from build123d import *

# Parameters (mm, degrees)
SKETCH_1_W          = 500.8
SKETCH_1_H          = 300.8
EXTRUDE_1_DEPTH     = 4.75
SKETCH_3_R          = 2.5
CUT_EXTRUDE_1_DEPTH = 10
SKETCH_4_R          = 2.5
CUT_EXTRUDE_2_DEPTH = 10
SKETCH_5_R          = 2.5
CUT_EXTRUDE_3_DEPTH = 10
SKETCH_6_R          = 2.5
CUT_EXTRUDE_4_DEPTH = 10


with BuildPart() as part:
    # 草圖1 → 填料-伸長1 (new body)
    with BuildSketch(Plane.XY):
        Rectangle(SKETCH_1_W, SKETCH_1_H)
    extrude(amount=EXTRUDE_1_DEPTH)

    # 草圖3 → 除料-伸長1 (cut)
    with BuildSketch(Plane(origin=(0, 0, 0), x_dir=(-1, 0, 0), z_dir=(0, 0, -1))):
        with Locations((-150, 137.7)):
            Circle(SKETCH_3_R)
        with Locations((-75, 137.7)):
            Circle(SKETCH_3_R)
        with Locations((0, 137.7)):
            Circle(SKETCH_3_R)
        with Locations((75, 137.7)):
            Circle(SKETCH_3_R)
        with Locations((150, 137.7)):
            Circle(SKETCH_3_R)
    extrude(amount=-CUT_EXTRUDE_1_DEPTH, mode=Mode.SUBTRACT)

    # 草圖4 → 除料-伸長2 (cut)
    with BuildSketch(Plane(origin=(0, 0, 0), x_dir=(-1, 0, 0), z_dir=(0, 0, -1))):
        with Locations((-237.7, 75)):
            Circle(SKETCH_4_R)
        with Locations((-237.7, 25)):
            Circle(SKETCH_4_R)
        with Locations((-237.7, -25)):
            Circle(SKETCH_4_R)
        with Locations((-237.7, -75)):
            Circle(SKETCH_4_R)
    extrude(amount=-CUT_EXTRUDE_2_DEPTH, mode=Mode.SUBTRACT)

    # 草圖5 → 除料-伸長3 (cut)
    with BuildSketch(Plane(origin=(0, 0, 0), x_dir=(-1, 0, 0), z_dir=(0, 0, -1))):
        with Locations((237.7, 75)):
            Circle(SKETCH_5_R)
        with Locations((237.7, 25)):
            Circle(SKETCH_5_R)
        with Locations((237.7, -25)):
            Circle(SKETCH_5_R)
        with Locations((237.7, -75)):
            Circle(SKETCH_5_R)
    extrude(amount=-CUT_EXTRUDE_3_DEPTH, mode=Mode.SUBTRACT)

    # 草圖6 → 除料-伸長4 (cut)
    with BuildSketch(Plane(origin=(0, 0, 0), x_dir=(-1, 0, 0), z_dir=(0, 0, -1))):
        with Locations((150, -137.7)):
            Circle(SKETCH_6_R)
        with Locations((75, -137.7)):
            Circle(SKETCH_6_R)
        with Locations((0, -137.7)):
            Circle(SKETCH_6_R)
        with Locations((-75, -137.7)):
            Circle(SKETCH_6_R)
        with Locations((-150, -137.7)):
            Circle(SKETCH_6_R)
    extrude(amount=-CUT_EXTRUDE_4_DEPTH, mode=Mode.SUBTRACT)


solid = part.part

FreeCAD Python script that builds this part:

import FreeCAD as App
import Part
import Sketcher
from FreeCAD import Vector
Q = App.Units.Quantity


def add_polygon(sketch, points):
    """Adds a closed chain of lines whose ends are joined by coincident constraints."""
    first, n = sketch.GeometryCount, len(points)
    for a, b in zip(points, points[1:] + points[:1]):
        sketch.addGeometry(Part.LineSegment(App.Vector(*a, 0), App.Vector(*b, 0)), False)
    for i in range(n):
        sketch.addConstraint(Sketcher.Constraint("Coincident", first + i, 2, first + (i + 1) % n, 1))

doc = App.newDocument("Part")
params = doc.addObject("Spreadsheet::Sheet", "Params")
for row, (alias, value) in enumerate([
    ("sketch1_width", "500.8 mm"),
    ("sketch1_height", "300.8 mm"),
    ("pad1_length", "4.75 mm"),
    ("sketch2_diameter", "5 mm"),
    ("pocket1_length", "10 mm"),
    ("sketch3_diameter", "5 mm"),
    ("pocket2_length", "10 mm"),
    ("sketch4_diameter", "5 mm"),
    ("pocket3_length", "10 mm"),
    ("sketch5_diameter", "5 mm"),
    ("pocket4_length", "10 mm"),
], start=1):
    params.set(f"A{row}", alias)
    params.set(f"B{row}", "=" + value)
    params.setAlias(f"B{row}", alias)

body = doc.addObject("PartDesign::Body", "Body")

sketch1 = body.newObject("Sketcher::SketchObject", "Sketch")
sketch1.AttachmentSupport = (doc.getObject("XY_Plane"), [""])
sketch1.MapMode = "FlatFace"
add_polygon(sketch1, [(-250, 150), (-250, -150), (250, -150), (250, 150)])
sketch1.addConstraint([
    Sketcher.Constraint("Vertical", 0),
    Sketcher.Constraint("Horizontal", 1),
    Sketcher.Constraint("Vertical", 2),
    Sketcher.Constraint("Horizontal", 3),
    Sketcher.Constraint("Symmetric", 0, 2, 2, 2, -1, 1),
    Sketcher.Constraint("DistanceX", 1, 1, 1, 2, Q("500.8 mm")),
    Sketcher.Constraint("DistanceY", 0, 2, 0, 1, Q("300.8 mm")),
])
sketch1.setExpression("Constraints[9]", "Params.sketch1_width")
sketch1.setExpression("Constraints[10]", "Params.sketch1_height")
pad1 = body.newObject("PartDesign::Pad", "Pad")
pad1.Profile = sketch1
pad1.setExpression("Length", "Params.pad1_length")

sketch2 = body.newObject("Sketcher::SketchObject", "Sketch001")
sketch2.AttachmentSupport = (doc.getObject("XY_Plane"), [""])
sketch2.MapMode = "FlatFace"
sketch2.addGeometry([
    Part.Circle(Vector(150, 137.7, 0), Vector(0, 0, 1), 2.5),
    Part.Circle(Vector(75, 137.7, 0), Vector(0, 0, 1), 2.5),
    Part.Circle(Vector(0, 137.7, 0), Vector(0, 0, 1), 2.5),
    Part.Circle(Vector(-75, 137.7, 0), Vector(0, 0, 1), 2.5),
    Part.Circle(Vector(-150, 137.7, 0), Vector(0, 0, 1), 2.5),
], False)
sketch2.addConstraint([
    Sketcher.Constraint("Equal", 0, 1),
    Sketcher.Constraint("Equal", 1, 2),
    Sketcher.Constraint("Equal", 2, 3),
    Sketcher.Constraint("Equal", 3, 4),
    Sketcher.Constraint("Symmetric", 1, 3, 3, 3, -2),
    Sketcher.Constraint("Symmetric", 0, 3, 4, 3, -2),
    Sketcher.Constraint("PointOnObject", 2, 3, -2),
    Sketcher.Constraint("Horizontal", 0, 3, 1, 3),
    Sketcher.Constraint("Horizontal", 1, 3, 2, 3),
    Sketcher.Constraint("Diameter", 0, Q("5 mm")),
    Sketcher.Constraint("DistanceX", -1, 1, 0, 3, Q("150 mm")),
    Sketcher.Constraint("DistanceX", -1, 1, 1, 3, Q("75 mm")),
    Sketcher.Constraint("DistanceY", -1, 1, 0, 3, Q("137.7 mm")),
])
sketch2.setExpression("Constraints[9]", "Params.sketch2_diameter")
pocket1 = body.newObject("PartDesign::Pocket", "Pocket")
pocket1.Profile = sketch2
pocket1.setExpression("Length", "Params.pocket1_length")
pocket1.Reversed = True

sketch3 = body.newObject("Sketcher::SketchObject", "Sketch002")
sketch3.AttachmentSupport = (doc.getObject("XY_Plane"), [""])
sketch3.MapMode = "FlatFace"
sketch3.addGeometry([
    Part.Circle(Vector(237.7, 75, 0), Vector(0, 0, 1), 2.5),
    Part.Circle(Vector(237.7, 25, 0), Vector(0, 0, 1), 2.5),
    Part.Circle(Vector(237.7, -25, 0), Vector(0, 0, 1), 2.5),
    Part.Circle(Vector(237.7, -75, 0), Vector(0, 0, 1), 2.5),
], False)
sketch3.addConstraint([
    Sketcher.Constraint("Equal", 0, 1),
    Sketcher.Constraint("Equal", 1, 2),
    Sketcher.Constraint("Equal", 2, 3),
    Sketcher.Constraint("Symmetric", 1, 3, 2, 3, -1),
    Sketcher.Constraint("Symmetric", 0, 3, 3, 3, -1),
    Sketcher.Constraint("Vertical", 0, 3, 1, 3),
    Sketcher.Constraint("Diameter", 0, Q("5 mm")),
    Sketcher.Constraint("DistanceY", -1, 1, 0, 3, Q("75 mm")),
    Sketcher.Constraint("DistanceY", -1, 1, 1, 3, Q("25 mm")),
    Sketcher.Constraint("DistanceX", -1, 1, 0, 3, Q("237.7 mm")),
])
sketch3.setExpression("Constraints[6]", "Params.sketch3_diameter")
pocket2 = body.newObject("PartDesign::Pocket", "Pocket001")
pocket2.Profile = sketch3
pocket2.setExpression("Length", "Params.pocket2_length")
pocket2.Reversed = True

sketch4 = body.newObject("Sketcher::SketchObject", "Sketch003")
sketch4.AttachmentSupport = (doc.getObject("XY_Plane"), [""])
sketch4.MapMode = "FlatFace"
sketch4.addGeometry([
    Part.Circle(Vector(-237.7, 75, 0), Vector(0, 0, 1), 2.5),
    Part.Circle(Vector(-237.7, 25, 0), Vector(0, 0, 1), 2.5),
    Part.Circle(Vector(-237.7, -25, 0), Vector(0, 0, 1), 2.5),
    Part.Circle(Vector(-237.7, -75, 0), Vector(0, 0, 1), 2.5),
], False)
sketch4.addConstraint([
    Sketcher.Constraint("Equal", 0, 1),
    Sketcher.Constraint("Equal", 1, 2),
    Sketcher.Constraint("Equal", 2, 3),
    Sketcher.Constraint("Symmetric", 1, 3, 2, 3, -1),
    Sketcher.Constraint("Symmetric", 0, 3, 3, 3, -1),
    Sketcher.Constraint("Vertical", 0, 3, 1, 3),
    Sketcher.Constraint("Diameter", 0, Q("5 mm")),
    Sketcher.Constraint("DistanceY", -1, 1, 0, 3, Q("75 mm")),
    Sketcher.Constraint("DistanceY", -1, 1, 1, 3, Q("25 mm")),
    Sketcher.Constraint("DistanceX", 0, 3, -1, 1, Q("237.7 mm")),
])
sketch4.setExpression("Constraints[6]", "Params.sketch4_diameter")
pocket3 = body.newObject("PartDesign::Pocket", "Pocket002")
pocket3.Profile = sketch4
pocket3.setExpression("Length", "Params.pocket3_length")
pocket3.Reversed = True

sketch5 = body.newObject("Sketcher::SketchObject", "Sketch004")
sketch5.AttachmentSupport = (doc.getObject("XY_Plane"), [""])
sketch5.MapMode = "FlatFace"
sketch5.addGeometry([
    Part.Circle(Vector(-150, -137.7, 0), Vector(0, 0, 1), 2.5),
    Part.Circle(Vector(-75, -137.7, 0), Vector(0, 0, 1), 2.5),
    Part.Circle(Vector(0, -137.7, 0), Vector(0, 0, 1), 2.5),
    Part.Circle(Vector(75, -137.7, 0), Vector(0, 0, 1), 2.5),
    Part.Circle(Vector(150, -137.7, 0), Vector(0, 0, 1), 2.5),
], False)
sketch5.addConstraint([
    Sketcher.Constraint("Equal", 0, 1),
    Sketcher.Constraint("Equal", 1, 2),
    Sketcher.Constraint("Equal", 2, 3),
    Sketcher.Constraint("Equal", 3, 4),
    Sketcher.Constraint("Symmetric", 1, 3, 3, 3, -2),
    Sketcher.Constraint("Symmetric", 0, 3, 4, 3, -2),
    Sketcher.Constraint("PointOnObject", 2, 3, -2),
    Sketcher.Constraint("Horizontal", 0, 3, 1, 3),
    Sketcher.Constraint("Horizontal", 1, 3, 2, 3),
    Sketcher.Constraint("Diameter", 0, Q("5 mm")),
    Sketcher.Constraint("DistanceX", 0, 3, -1, 1, Q("150 mm")),
    Sketcher.Constraint("DistanceX", 1, 3, -1, 1, Q("75 mm")),
    Sketcher.Constraint("DistanceY", 0, 3, -1, 1, Q("137.7 mm")),
])
sketch5.setExpression("Constraints[9]", "Params.sketch5_diameter")
pocket4 = body.newObject("PartDesign::Pocket", "Pocket003")
pocket4.Profile = sketch5
pocket4.setExpression("Length", "Params.pocket4_length")
pocket4.Reversed = True

doc.recompute()
